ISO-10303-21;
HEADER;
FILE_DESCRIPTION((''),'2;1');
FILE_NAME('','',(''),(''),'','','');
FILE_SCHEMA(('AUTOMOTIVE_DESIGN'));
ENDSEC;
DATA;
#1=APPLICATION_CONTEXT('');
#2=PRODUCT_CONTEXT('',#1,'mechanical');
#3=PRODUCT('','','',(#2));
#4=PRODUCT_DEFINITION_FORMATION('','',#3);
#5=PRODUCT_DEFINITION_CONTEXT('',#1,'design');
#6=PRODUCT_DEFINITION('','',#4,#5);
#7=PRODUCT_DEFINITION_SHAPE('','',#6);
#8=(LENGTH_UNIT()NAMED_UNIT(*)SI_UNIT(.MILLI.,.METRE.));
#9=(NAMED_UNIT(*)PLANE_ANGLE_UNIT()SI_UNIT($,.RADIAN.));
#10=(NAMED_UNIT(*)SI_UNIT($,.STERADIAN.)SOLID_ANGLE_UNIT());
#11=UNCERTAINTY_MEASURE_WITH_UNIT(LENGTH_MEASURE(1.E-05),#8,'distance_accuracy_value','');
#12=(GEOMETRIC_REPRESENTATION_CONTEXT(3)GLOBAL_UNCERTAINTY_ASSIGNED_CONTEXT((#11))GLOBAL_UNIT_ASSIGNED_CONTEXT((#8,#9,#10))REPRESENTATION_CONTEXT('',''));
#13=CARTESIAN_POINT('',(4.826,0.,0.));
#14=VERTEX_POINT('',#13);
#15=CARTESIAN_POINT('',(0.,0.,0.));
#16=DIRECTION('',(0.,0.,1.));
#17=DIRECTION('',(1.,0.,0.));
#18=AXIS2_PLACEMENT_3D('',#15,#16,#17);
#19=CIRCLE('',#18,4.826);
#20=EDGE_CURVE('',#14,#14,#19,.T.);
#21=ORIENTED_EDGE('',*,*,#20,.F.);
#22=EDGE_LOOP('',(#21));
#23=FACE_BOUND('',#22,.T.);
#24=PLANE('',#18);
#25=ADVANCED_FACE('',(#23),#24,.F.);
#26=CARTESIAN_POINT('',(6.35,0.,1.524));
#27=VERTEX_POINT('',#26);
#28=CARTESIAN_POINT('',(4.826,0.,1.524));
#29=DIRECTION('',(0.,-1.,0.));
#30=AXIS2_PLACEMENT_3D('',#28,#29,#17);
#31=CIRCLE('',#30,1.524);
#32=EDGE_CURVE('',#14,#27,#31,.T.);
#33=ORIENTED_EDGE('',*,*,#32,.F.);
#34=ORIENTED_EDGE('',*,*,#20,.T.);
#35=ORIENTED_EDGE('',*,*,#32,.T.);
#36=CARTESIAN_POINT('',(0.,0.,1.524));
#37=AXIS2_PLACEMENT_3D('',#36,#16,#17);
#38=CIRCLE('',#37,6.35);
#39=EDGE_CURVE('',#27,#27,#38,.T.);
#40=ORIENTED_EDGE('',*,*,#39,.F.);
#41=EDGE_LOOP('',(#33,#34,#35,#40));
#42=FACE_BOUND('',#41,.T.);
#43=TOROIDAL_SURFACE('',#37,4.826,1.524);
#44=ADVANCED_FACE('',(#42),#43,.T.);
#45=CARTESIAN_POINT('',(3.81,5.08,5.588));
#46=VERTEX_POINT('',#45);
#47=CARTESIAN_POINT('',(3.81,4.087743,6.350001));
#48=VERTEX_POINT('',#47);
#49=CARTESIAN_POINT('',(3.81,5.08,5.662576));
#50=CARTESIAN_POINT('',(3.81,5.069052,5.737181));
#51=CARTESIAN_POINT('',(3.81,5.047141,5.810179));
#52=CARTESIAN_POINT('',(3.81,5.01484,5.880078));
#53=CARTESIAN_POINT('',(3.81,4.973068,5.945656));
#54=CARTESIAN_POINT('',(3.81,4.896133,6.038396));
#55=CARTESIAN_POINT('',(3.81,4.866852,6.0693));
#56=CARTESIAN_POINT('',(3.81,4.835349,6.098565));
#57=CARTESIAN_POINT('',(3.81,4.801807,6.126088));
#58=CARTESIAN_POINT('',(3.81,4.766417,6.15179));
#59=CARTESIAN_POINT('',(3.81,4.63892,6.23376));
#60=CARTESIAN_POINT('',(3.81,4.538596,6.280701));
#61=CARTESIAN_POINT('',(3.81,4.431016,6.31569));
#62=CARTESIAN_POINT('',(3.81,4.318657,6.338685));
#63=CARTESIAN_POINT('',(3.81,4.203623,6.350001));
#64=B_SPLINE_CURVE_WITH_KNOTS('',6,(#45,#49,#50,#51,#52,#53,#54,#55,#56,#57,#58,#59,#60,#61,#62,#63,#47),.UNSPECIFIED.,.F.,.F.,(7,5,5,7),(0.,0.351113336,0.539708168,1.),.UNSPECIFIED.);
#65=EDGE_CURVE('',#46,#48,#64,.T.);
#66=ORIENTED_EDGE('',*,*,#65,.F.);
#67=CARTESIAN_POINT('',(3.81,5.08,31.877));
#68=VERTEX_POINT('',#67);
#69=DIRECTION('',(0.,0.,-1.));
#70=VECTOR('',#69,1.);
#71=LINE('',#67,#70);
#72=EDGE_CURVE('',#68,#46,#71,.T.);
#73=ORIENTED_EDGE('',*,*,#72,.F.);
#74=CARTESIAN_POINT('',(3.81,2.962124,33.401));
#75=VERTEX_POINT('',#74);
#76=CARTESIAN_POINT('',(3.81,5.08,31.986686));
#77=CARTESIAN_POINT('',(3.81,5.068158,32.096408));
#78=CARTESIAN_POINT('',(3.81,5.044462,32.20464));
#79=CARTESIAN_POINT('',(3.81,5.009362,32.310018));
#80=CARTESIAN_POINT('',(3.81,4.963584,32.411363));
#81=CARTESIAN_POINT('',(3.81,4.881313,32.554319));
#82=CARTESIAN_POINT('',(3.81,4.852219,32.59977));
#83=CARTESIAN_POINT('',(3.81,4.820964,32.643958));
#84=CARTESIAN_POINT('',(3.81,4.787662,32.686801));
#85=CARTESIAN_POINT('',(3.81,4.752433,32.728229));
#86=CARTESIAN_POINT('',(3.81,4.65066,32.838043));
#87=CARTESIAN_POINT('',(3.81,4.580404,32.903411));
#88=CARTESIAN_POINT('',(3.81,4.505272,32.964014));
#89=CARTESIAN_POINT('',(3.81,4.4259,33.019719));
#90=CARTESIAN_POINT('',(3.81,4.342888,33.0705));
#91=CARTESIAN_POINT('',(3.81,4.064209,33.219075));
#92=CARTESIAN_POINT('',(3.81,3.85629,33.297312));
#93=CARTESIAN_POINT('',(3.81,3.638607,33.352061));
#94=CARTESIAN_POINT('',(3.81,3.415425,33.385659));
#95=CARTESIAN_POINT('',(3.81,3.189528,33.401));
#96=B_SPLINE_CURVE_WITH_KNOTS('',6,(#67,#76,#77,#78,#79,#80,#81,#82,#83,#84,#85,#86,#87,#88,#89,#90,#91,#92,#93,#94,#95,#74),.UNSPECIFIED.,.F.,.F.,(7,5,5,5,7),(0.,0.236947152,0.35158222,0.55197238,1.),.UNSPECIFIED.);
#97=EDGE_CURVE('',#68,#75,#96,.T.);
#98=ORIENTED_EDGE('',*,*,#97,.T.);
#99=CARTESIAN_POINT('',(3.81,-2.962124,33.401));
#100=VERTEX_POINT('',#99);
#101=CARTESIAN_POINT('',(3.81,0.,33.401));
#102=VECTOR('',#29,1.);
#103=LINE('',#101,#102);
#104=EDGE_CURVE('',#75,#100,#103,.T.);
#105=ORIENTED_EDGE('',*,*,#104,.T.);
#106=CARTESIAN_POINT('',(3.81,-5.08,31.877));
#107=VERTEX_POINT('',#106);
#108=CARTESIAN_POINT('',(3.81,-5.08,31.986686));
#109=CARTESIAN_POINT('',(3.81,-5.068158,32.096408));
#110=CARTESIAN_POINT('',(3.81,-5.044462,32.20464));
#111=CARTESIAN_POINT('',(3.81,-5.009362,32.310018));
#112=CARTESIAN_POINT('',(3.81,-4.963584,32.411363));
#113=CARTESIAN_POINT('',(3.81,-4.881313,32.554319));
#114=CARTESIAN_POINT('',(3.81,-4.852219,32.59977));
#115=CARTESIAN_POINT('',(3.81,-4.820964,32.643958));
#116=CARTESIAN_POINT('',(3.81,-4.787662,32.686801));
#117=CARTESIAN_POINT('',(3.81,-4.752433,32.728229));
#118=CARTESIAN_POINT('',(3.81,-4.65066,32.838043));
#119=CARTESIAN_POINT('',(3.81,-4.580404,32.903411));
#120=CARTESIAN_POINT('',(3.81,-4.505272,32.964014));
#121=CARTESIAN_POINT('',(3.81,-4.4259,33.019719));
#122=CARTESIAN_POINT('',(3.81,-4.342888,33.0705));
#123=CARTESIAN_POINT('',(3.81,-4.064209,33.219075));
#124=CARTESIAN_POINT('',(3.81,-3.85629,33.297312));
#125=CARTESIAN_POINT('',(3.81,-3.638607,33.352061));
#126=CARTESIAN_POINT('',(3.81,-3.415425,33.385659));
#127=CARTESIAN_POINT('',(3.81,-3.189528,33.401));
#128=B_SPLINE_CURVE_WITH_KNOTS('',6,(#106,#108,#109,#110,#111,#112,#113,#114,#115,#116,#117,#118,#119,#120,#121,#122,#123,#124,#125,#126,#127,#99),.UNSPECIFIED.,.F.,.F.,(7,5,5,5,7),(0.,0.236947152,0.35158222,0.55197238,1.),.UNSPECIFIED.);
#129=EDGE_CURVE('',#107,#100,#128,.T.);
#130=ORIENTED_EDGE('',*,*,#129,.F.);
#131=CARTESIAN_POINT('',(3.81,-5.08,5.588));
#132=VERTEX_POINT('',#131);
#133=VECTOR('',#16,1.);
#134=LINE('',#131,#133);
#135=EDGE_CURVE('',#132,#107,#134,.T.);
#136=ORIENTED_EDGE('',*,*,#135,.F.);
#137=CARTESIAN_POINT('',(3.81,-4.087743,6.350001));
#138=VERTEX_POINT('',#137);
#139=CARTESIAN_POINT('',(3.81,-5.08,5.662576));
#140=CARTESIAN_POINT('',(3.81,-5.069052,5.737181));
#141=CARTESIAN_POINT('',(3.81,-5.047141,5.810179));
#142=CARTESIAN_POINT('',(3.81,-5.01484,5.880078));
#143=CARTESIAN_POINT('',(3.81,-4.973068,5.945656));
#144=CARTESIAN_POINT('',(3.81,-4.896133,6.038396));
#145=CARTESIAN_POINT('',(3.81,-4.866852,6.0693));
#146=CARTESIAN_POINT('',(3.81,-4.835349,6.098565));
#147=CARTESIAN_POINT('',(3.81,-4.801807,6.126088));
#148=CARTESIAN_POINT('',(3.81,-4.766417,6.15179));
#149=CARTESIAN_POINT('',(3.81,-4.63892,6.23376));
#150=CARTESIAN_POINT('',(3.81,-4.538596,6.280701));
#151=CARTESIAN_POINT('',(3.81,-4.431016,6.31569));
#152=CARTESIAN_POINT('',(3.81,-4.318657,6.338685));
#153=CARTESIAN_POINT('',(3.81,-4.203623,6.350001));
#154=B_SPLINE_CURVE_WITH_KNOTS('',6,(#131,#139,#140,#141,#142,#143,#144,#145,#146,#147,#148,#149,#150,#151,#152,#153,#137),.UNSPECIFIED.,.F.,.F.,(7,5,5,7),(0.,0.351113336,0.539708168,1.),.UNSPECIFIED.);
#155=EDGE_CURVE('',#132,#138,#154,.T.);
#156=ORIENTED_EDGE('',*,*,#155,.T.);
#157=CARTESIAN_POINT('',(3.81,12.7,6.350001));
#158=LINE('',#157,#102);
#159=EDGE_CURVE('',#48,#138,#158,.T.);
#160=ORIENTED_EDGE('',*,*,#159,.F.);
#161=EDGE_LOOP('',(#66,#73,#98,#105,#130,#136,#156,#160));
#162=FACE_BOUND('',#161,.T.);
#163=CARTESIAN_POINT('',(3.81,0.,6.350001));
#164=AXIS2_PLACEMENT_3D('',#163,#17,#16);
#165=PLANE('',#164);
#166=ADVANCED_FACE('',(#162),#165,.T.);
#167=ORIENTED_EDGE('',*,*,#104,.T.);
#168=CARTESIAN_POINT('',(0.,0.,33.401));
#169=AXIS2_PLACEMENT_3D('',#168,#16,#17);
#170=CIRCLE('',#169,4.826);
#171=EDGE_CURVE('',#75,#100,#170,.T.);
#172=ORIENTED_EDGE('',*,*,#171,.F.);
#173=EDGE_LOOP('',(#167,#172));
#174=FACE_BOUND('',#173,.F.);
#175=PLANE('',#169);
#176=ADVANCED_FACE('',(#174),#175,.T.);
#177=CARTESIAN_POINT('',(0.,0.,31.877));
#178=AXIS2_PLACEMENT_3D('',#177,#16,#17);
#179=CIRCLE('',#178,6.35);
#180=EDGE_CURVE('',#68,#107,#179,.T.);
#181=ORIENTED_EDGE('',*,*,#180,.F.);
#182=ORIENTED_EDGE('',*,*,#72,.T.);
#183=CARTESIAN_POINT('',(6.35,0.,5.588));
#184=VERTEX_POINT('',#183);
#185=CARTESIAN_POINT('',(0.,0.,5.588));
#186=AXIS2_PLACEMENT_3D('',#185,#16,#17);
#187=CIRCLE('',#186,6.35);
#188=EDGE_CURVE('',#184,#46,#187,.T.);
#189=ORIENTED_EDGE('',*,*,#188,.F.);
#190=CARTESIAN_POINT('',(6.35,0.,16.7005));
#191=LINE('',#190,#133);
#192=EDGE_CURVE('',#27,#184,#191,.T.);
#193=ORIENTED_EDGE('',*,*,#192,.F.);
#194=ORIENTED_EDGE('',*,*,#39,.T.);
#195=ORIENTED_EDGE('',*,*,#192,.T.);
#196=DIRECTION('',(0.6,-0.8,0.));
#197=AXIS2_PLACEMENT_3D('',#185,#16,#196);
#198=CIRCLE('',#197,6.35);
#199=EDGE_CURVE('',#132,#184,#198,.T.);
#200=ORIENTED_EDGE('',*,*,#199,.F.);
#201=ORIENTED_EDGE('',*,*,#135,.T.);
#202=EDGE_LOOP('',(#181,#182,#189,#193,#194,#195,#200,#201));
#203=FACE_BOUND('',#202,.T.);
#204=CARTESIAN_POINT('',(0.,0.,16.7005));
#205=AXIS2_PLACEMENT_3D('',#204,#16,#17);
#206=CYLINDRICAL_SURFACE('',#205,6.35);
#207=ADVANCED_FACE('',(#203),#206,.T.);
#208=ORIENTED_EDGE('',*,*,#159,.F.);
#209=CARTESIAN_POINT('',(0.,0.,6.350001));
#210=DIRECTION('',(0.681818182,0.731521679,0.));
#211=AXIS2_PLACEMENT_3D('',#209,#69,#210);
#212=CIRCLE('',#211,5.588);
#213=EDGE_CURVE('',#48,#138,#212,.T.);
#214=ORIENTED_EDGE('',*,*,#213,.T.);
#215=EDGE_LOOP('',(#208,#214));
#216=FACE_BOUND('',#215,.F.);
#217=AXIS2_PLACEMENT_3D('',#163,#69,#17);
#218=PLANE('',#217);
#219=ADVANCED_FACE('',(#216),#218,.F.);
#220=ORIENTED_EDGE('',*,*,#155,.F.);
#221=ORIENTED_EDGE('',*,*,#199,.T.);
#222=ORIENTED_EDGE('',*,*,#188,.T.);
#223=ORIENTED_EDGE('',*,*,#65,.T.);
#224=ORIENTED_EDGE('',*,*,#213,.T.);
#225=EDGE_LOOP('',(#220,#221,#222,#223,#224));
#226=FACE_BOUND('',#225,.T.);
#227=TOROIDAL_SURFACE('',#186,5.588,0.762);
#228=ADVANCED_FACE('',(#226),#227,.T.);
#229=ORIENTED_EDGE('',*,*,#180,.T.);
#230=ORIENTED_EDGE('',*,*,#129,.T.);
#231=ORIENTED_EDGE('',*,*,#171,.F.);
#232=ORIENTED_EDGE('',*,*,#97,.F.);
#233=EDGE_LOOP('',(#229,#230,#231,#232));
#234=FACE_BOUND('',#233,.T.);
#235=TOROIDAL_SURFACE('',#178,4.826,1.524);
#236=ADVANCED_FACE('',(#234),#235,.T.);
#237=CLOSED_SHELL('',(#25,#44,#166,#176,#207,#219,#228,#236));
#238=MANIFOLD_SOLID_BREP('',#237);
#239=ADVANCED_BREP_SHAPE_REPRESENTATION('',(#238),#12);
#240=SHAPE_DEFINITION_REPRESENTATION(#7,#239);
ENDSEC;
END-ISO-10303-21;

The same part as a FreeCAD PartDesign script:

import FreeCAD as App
import Part
import Sketcher

V = App.Vector
Q = App.Units.Quantity


def edges_at(feature, points):
    """Names of the edges that pass closest to the given points."""
    edges = feature.Shape.Edges
    near = lambda p: min(range(len(edges)), key=lambda i: edges[i].distToShape(Part.Vertex(*p))[0])
    return sorted({f"Edge{near(p) + 1}" for p in points})

doc = App.newDocument("Part")
body = doc.addObject("PartDesign::Body", "Body")

sketch1 = doc.addObject("Sketcher::SketchObject", "Sketch")
body.addObject(sketch1)
sketch1.AttachmentSupport = (doc.XZ_Plane, [""])
sketch1.MapMode = "FlatFace"
sketch1.addGeometry(Part.LineSegment(V(0, 33, 0), V(0, 0, 0)), False)
sketch1.addGeometry(Part.LineSegment(V(0, 0, 0), V(6, 0, 0)), False)
sketch1.addGeometry(Part.LineSegment(V(6, 0, 0), V(6, 33, 0)), False)
sketch1.addGeometry(Part.LineSegment(V(6, 33, 0), V(0, 33, 0)), False)
sketch1.addConstraint(Sketcher.Constraint("Coincident", 0, 2, 1, 1))
sketch1.addConstraint(Sketcher.Constraint("Coincident", 1, 2, 2, 1))
sketch1.addConstraint(Sketcher.Constraint("Coincident", 2, 2, 3, 1))
sketch1.addConstraint(Sketcher.Constraint("Coincident", 3, 2, 0, 1))
sketch1.addConstraint(Sketcher.Constraint("Vertical", 0))
sketch1.addConstraint(Sketcher.Constraint("Horizontal", 1))
sketch1.addConstraint(Sketcher.Constraint("Vertical", 2))
sketch1.addConstraint(Sketcher.Constraint("Horizontal", 3))
sketch1.addConstraint(Sketcher.Constraint("Coincident", 0, 2, -1, 1))
sketch1.addConstraint(Sketcher.Constraint("DistanceX", 1, 1, 1, 2, Q("0.25 in")))
sketch1.addConstraint(Sketcher.Constraint("DistanceY", 0, 2, 0, 1, Q("1.315 in")))
revolution = doc.addObject("PartDesign::Revolution", "Revolution")
body.addObject(revolution)
revolution.Profile = sketch1
revolution.ReferenceAxis = (sketch1, ["V_Axis"])
revolution.Angle = 360
doc.recompute()

fillet = doc.addObject("PartDesign::Fillet", "Fillet")
body.addObject(fillet)
fillet.Base = (revolution, ["Edge1"])
fillet.UseAllEdges = True
fillet.Radius = Q("0.06 in")

sketch2 = doc.addObject("Sketcher::SketchObject", "Sketch001")
body.addObject(sketch2)
sketch2.AttachmentSupport = (doc.XZ_Plane, [""])
sketch2.MapMode = "FlatFace"
sketch2.addGeometry(Part.LineSegment(V(4, 35, 0), V(4, 6, 0)), False)
sketch2.addGeometry(Part.LineSegment(V(4, 6, 0), V(9, 6, 0)), False)
sketch2.addGeometry(Part.LineSegment(V(9, 6, 0), V(9, 35, 0)), False)
sketch2.addGeometry(Part.LineSegment(V(9, 35, 0), V(4, 35, 0)), False)
sketch2.addConstraint(Sketcher.Constraint("Coincident", 0, 2, 1, 1))
sketch2.addConstraint(Sketcher.Constraint("Coincident", 1, 2, 2, 1))
sketch2.addConstraint(Sketcher.Constraint("Coincident", 2, 2, 3, 1))
sketch2.addConstraint(Sketcher.Constraint("Coincident", 3, 2, 0, 1))
sketch2.addConstraint(Sketcher.Constraint("Vertical", 0))
sketch2.addConstraint(Sketcher.Constraint("Horizontal", 1))
sketch2.addConstraint(Sketcher.Constraint("Vertical", 2))
sketch2.addConstraint(Sketcher.Constraint("Horizontal", 3))
sketch2.addConstraint(Sketcher.Constraint("DistanceX", 1, 1, 1, 2, Q("0.2 in")))
sketch2.addConstraint(Sketcher.Constraint("DistanceX", -1, 1, 0, 2, Q("0.15 in")))
sketch2.addConstraint(Sketcher.Constraint("DistanceY", -1, 1, 0, 2, Q("0.25 in")))
sketch2.addConstraint(Sketcher.Constraint("DistanceY", 0, 2, 0, 1, Q("28.219457 mm")))
pocket1 = doc.addObject("PartDesign::Pocket", "Pocket")
body.addObject(pocket1)
pocket1.Profile = sketch2
pocket1.Length = Q("1 in")
pocket1.Midplane = True
doc.recompute()

fillet2 = doc.addObject("PartDesign::Fillet", "Fillet001")
body.addObject(fillet2)
fillet2.Base = (pocket1, edges_at(pocket1, [(5.68, 2.84, 6.35), (5.68, -2.84, 6.35)]))
fillet2.Radius = Q("0.03 in")

doc.recompute()
